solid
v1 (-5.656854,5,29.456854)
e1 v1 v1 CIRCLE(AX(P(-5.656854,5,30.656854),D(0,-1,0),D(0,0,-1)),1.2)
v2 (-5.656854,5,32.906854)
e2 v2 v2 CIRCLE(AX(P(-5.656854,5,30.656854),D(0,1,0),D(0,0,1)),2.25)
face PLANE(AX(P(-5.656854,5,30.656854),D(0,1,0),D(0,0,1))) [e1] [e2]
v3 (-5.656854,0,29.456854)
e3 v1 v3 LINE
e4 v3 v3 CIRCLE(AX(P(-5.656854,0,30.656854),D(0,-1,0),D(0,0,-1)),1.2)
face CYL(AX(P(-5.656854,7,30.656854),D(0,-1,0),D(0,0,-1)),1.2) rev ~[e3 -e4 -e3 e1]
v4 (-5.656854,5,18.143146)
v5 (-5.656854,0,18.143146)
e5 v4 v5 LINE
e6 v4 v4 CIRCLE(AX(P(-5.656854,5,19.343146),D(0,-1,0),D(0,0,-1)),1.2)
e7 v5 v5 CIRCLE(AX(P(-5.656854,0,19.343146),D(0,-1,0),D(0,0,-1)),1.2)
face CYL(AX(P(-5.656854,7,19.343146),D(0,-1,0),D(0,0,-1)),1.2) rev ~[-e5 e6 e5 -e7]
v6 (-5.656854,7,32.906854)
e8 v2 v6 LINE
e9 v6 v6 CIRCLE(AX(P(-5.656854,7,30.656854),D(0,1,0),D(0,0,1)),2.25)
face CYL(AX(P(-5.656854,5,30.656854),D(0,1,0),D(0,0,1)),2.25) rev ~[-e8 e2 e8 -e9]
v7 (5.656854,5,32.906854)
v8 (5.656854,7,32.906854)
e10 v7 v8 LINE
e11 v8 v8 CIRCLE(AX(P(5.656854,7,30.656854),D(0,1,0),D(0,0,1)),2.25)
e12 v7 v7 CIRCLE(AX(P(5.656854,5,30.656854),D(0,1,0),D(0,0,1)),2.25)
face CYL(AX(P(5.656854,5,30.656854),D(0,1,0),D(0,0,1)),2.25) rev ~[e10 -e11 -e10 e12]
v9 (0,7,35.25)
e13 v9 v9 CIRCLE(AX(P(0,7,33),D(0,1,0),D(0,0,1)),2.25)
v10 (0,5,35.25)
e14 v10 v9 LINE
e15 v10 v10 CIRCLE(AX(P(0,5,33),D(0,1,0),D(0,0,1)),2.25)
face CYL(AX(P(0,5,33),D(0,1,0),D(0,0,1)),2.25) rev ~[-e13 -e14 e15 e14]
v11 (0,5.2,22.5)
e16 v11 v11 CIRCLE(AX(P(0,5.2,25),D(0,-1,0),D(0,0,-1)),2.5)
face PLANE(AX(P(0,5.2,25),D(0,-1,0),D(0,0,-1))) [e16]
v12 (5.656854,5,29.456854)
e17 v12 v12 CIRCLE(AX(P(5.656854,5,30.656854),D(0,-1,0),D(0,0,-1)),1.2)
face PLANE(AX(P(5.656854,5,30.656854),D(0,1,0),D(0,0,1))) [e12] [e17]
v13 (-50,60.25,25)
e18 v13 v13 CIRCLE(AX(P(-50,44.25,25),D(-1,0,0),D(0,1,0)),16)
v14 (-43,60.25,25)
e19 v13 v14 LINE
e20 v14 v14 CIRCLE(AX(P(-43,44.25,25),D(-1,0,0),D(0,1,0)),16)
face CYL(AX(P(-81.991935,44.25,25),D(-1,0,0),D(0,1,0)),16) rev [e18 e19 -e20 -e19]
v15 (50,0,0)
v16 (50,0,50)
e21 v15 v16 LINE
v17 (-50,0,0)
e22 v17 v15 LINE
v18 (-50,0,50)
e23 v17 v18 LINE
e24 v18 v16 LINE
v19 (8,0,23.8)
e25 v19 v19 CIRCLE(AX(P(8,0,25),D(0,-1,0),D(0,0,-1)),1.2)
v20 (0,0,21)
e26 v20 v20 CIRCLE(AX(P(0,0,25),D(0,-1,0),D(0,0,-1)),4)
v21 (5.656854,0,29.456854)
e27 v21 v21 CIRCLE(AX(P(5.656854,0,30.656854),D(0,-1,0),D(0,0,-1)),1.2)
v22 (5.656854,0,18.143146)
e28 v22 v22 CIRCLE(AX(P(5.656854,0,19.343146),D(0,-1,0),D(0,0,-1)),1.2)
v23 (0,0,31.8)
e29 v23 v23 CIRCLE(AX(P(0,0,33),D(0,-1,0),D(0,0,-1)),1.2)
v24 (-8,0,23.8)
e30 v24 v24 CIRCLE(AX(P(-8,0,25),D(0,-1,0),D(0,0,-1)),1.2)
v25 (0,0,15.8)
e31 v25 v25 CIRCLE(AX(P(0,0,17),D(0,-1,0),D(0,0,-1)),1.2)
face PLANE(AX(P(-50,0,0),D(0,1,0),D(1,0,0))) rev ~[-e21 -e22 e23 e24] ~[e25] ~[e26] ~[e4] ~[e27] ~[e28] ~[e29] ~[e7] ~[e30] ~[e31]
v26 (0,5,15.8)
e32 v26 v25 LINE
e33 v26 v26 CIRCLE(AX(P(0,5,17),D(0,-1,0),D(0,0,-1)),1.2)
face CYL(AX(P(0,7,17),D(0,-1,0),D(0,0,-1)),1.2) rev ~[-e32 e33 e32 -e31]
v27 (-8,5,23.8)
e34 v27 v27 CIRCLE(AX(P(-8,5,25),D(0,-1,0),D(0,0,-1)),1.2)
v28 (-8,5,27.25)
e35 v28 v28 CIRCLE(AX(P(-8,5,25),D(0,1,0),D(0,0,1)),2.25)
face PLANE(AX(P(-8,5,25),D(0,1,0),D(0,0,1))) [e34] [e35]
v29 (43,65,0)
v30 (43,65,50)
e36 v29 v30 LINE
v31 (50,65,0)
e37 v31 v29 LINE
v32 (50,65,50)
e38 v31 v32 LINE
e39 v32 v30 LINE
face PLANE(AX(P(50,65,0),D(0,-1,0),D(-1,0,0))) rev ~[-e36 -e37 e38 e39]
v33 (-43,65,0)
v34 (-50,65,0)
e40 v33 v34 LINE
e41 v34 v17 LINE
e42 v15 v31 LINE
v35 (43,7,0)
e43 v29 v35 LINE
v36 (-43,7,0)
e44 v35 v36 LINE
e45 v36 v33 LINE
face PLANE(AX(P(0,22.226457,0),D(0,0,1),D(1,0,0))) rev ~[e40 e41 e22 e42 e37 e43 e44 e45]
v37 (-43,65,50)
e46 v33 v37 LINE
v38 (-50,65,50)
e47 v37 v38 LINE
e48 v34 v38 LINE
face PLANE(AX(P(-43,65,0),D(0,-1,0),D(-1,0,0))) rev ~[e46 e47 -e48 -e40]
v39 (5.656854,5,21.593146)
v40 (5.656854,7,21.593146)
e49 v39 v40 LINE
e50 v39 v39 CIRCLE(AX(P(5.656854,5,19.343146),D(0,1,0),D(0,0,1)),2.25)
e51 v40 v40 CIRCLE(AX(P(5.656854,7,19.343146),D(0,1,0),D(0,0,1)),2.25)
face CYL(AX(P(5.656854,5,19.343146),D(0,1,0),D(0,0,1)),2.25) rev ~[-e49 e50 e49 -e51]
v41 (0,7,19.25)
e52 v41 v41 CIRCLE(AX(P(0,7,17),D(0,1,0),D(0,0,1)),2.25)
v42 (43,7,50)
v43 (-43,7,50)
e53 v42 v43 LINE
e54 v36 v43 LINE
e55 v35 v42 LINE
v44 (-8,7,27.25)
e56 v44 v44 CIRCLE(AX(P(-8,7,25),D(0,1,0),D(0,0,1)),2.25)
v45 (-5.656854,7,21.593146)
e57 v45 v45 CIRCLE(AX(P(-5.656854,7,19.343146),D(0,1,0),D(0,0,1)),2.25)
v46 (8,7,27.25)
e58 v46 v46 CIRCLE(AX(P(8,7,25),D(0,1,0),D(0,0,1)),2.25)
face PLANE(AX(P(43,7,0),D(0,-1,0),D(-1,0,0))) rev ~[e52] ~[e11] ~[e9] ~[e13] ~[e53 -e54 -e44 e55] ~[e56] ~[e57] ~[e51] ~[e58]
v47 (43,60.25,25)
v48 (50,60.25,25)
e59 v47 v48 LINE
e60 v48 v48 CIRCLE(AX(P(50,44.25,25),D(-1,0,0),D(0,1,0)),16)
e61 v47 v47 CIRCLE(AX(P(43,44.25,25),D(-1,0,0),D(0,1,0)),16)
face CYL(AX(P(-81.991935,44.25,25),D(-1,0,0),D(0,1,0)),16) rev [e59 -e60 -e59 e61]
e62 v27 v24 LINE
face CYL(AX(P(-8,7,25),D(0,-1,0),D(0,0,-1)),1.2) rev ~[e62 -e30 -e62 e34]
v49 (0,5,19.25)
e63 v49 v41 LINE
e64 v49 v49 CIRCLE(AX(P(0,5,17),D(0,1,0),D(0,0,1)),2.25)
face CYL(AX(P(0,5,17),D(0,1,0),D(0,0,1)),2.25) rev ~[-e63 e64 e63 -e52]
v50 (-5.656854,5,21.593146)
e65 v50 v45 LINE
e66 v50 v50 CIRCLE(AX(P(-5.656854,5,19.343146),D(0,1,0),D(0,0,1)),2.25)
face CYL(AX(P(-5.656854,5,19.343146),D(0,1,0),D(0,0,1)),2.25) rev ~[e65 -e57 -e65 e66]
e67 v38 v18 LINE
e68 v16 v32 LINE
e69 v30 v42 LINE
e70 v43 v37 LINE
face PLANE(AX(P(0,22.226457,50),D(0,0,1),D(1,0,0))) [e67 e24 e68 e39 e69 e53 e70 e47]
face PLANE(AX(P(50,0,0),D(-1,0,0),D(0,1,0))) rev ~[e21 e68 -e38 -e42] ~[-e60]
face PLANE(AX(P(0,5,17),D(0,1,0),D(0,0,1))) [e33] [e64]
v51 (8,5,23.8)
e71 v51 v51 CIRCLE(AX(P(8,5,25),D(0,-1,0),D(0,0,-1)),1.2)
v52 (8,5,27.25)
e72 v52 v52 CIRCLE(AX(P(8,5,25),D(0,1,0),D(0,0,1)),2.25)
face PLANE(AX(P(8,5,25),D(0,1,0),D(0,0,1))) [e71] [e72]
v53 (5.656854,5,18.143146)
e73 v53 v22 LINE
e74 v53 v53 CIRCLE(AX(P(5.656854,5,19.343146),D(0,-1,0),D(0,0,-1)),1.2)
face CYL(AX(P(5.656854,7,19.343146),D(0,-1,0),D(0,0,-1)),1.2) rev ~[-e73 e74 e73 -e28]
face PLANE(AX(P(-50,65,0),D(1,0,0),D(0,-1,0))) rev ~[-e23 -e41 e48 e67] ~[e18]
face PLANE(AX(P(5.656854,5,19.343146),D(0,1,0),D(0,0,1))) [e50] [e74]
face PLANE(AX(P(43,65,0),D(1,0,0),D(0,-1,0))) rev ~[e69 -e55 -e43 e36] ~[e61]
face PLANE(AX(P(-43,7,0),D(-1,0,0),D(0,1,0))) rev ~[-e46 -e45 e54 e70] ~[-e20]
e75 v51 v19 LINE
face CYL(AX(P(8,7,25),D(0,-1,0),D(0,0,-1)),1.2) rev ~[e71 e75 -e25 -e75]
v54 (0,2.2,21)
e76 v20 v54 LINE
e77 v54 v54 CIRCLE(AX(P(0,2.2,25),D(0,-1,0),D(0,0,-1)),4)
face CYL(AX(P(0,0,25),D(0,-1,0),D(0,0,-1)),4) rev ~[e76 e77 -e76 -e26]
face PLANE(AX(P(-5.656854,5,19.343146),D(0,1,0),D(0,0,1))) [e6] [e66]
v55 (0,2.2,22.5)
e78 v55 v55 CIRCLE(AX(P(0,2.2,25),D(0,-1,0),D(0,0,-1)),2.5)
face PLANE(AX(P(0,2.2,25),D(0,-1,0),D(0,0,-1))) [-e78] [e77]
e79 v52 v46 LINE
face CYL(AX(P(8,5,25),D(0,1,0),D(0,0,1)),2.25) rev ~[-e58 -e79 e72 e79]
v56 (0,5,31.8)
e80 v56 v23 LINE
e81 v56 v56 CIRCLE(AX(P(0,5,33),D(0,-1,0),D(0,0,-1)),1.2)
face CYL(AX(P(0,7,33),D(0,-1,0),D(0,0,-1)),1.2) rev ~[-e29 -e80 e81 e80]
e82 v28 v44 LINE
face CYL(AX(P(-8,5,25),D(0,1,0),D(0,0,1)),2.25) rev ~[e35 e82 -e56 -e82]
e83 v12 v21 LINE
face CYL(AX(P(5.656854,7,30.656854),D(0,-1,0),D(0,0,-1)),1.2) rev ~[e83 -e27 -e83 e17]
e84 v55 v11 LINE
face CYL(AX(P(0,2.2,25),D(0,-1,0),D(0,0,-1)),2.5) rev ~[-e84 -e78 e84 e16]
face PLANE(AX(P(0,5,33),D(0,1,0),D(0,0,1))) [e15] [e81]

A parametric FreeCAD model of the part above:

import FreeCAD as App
import Part
import Sketcher

V = App.Vector
Q = App.Units.Quantity

doc = App.newDocument("Part")
params = doc.addObject("Spreadsheet::Sheet", "Params")
for row, (alias, value) in enumerate([
    ("sketch1_width", "100 mm"),
    ("sketch1_width2", "7 mm"),
    ("sketch1_height", "65 mm"),
    ("sketch1_height2", "58 mm"),
    ("pad1_length", "50 mm"),
    ("sketch2_diameter", "2.4 mm"),
    ("hole_diameter", "2.4 mm"),
    ("hole_cbore_diameter", "4.5 mm"),
    ("hole_cbore_depth", "2 mm"),
    ("sketch3_diameter", "8 mm"),
    ("pocket1_length", "2.2 mm"),
    ("sketch4_diameter", "5 mm"),
    ("pocket2_length", "3 mm"),
    ("sketch5_diameter", "32 mm"),
], start=1):
    params.set(f"A{row}", alias)
    params.set(f"B{row}", "=" + value)
    params.setAlias(f"B{row}", alias)

body = doc.addObject("PartDesign::Body", "Body")

# Sketch on XY plane
sketch1 = body.newObject("Sketcher::SketchObject", "Sketch")
sketch1.AttachmentSupport = (doc.getObject("XY_Plane"), [""])
sketch1.MapMode = "FlatFace"
sketch1.addGeometry(Part.LineSegment(V(-50, 0, 0), V(50, 0, 0)), False)
sketch1.addGeometry(Part.LineSegment(V(50, 0, 0), V(50, 65, 0)), False)
sketch1.addGeometry(Part.LineSegment(V(50, 65, 0), V(43, 65, 0)), False)
sketch1.addGeometry(Part.LineSegment(V(43, 65, 0), V(43, 7, 0)), False)
sketch1.addGeometry(Part.LineSegment(V(43, 7, 0), V(-43, 7, 0)), False)
sketch1.addGeometry(Part.LineSegment(V(-43, 7, 0), V(-43, 65, 0)), False)
sketch1.addGeometry(Part.LineSegment(V(-43, 65, 0), V(-50, 65, 0)), False)
sketch1.addGeometry(Part.LineSegment(V(-50, 65, 0), V(-50, 0, 0)), False)
sketch1.addConstraint(Sketcher.Constraint("Coincident", 0, 2, 1, 1))
sketch1.addConstraint(Sketcher.Constraint("Coincident", 1, 2, 2, 1))
sketch1.addConstraint(Sketcher.Constraint("Coincident", 2, 2, 3, 1))
sketch1.addConstraint(Sketcher.Constraint("Coincident", 3, 2, 4, 1))
sketch1.addConstraint(Sketcher.Constraint("Coincident", 4, 2, 5, 1))
sketch1.addConstraint(Sketcher.Constraint("Coincident", 5, 2, 6, 1))
sketch1.addConstraint(Sketcher.Constraint("Coincident", 6, 2, 7, 1))
sketch1.addConstraint(Sketcher.Constraint("Coincident", 7, 2, 0, 1))
sketch1.addConstraint(Sketcher.Constraint("Horizontal", 0))
sketch1.addConstraint(Sketcher.Constraint("Vertical", 1))
sketch1.addConstraint(Sketcher.Constraint("Horizontal", 2))
sketch1.addConstraint(Sketcher.Constraint("Vertical", 3))
sketch1.addConstraint(Sketcher.Constraint("Horizontal", 4))
sketch1.addConstraint(Sketcher.Constraint("Vertical", 5))
sketch1.addConstraint(Sketcher.Constraint("Horizontal", 6))
sketch1.addConstraint(Sketcher.Constraint("Vertical", 7))
sketch1.addConstraint(Sketcher.Constraint("Symmetric", 0, 2, 7, 2, -1, 1))
sketch1.addConstraint(Sketcher.Constraint("Symmetric", 2, 2, 5, 2, -2))
sketch1.addConstraint(Sketcher.Constraint("DistanceX", 0, 1, 0, 2, Q("100 mm")))
sketch1.addConstraint(Sketcher.Constraint("DistanceX", 2, 2, 2, 1, Q("7 mm")))
sketch1.addConstraint(Sketcher.Constraint("DistanceY", 1, 1, 1, 2, Q("65 mm")))
sketch1.addConstraint(Sketcher.Constraint("DistanceY", 3, 2, 3, 1, Q("58 mm")))
sketch1.setExpression("Constraints[18]", "Params.sketch1_width")
sketch1.setExpression("Constraints[19]", "Params.sketch1_width2")
sketch1.setExpression("Constraints[20]", "Params.sketch1_height")
sketch1.setExpression("Constraints[21]", "Params.sketch1_height2")
pad1 = body.newObject("PartDesign::Pad", "Pad")
pad1.Profile = sketch1
pad1.setExpression("Length", "Params.pad1_length")

# Sketch on XZ plane
sketch2 = body.newObject("Sketcher::SketchObject", "Sketch001")
sketch2.AttachmentSupport = (doc.getObject("XZ_Plane"), [""])
sketch2.MapMode = "FlatFace"
sketch2.AttachmentOffset = App.Placement(V(0, 0, -7), App.Rotation())
sketch2.addGeometry(Part.Circle(V(0, 17, 0), V(0, 0, 1), 1.2), False)
sketch2.addGeometry(Part.Circle(V(5.7, 19.3, 0), V(0, 0, 1), 1.2), False)
sketch2.addGeometry(Part.Circle(V(8, 25, 0), V(0, 0, 1), 1.2), False)
sketch2.addGeometry(Part.Circle(V(5.7, 30.7, 0), V(0, 0, 1), 1.2), False)
sketch2.addGeometry(Part.Circle(V(0, 33, 0), V(0, 0, 1), 1.2), False)
sketch2.addGeometry(Part.Circle(V(-5.7, 30.7, 0), V(0, 0, 1), 1.2), False)
sketch2.addGeometry(Part.Circle(V(-8, 25, 0), V(0, 0, 1), 1.2), False)
sketch2.addGeometry(Part.Circle(V(-5.7, 19.3, 0), V(0, 0, 1), 1.2), False)
sketch2.addConstraint(Sketcher.Constraint("Equal", 0, 1))
sketch2.addConstraint(Sketcher.Constraint("Equal", 1, 2))
sketch2.addConstraint(Sketcher.Constraint("Equal", 2, 3))
sketch2.addConstraint(Sketcher.Constraint("Equal", 3, 4))
sketch2.addConstraint(Sketcher.Constraint("Equal", 4, 5))
sketch2.addConstraint(Sketcher.Constraint("Equal", 5, 6))
sketch2.addConstraint(Sketcher.Constraint("Equal", 6, 7))
sketch2.addConstraint(Sketcher.Constraint("Symmetric", 3, 3, 5, 3, -2))
sketch2.addConstraint(Sketcher.Constraint("Symmetric", 2, 3, 6, 3, -2))
sketch2.addConstraint(Sketcher.Constraint("Symmetric", 1, 3, 7, 3, -2))
sketch2.addConstraint(Sketcher.Constraint("PointOnObject", 0, 3, -2))
sketch2.addConstraint(Sketcher.Constraint("PointOnObject", 4, 3, -2))
sketch2.addConstraint(Sketcher.Constraint("Vertical", 1, 3, 3, 3))
sketch2.addConstraint(Sketcher.Constraint("Diameter", 0, Q("2.4 mm")))
sketch2.addConstraint(Sketcher.Constraint("DistanceY", -1, 1, 0, 3, Q("17 mm")))
sketch2.addConstraint(Sketcher.Constraint("DistanceX", -1, 1, 2, 3, Q("8 mm")))
sketch2.addConstraint(Sketcher.Constraint("DistanceY", -1, 1, 2, 3, Q("25 mm")))
sketch2.addConstraint(Sketcher.Constraint("DistanceY", -1, 1, 4, 3, Q("33 mm")))
sketch2.addConstraint(Sketcher.Constraint("DistanceY", 1, 3, 3, 3, Q("11.313708 mm")))
sketch2.addConstraint(Sketcher.Constraint("DistanceX", 5, 3, 3, 3, Q("11.313708 mm")))
sketch2.addConstraint(Sketcher.Constraint("DistanceY", -1, 1, 1, 3, Q("19.343146 mm")))
sketch2.setExpression("Constraints[13]", "Params.sketch2_diameter")
doc.recompute()
hole = body.newObject("PartDesign::Hole", "Hole")
hole.Profile = sketch2
hole.ThreadType = "None"
hole.setExpression("Diameter", "Params.hole_diameter")
hole.DepthType = "ThroughAll"
hole.HoleCutType = "Counterbore"
hole.setExpression("HoleCutDiameter", "Params.hole_cbore_diameter")
hole.setExpression("HoleCutDepth", "Params.hole_cbore_depth")
hole.Reversed = True

# Sketch on XZ plane
sketch3 = body.newObject("Sketcher::SketchObject", "Sketch002")
sketch3.AttachmentSupport = (doc.getObject("XZ_Plane"), [""])
sketch3.MapMode = "FlatFace"
sketch3.addGeometry(Part.Circle(V(0, 25, 0), V(0, 0, 1), 4), False)
sketch3.addConstraint(Sketcher.Constraint("PointOnObject", 0, 3, -2))
sketch3.addConstraint(Sketcher.Constraint("Diameter", 0, Q("8 mm")))
sketch3.addConstraint(Sketcher.Constraint("DistanceY", -1, 1, 0, 3, Q("25 mm")))
sketch3.setExpression("Constraints[1]", "Params.sketch3_diameter")
pocket1 = body.newObject("PartDesign::Pocket", "Pocket")
pocket1.Profile = sketch3
pocket1.setExpression("Length", "Params.pocket1_length")

# Sketch on XZ plane
sketch4 = body.newObject("Sketcher::SketchObject", "Sketch003")
sketch4.AttachmentSupport = (doc.getObject("XZ_Plane"), [""])
sketch4.MapMode = "FlatFace"
sketch4.AttachmentOffset = App.Placement(V(0, 0, -2.2), App.Rotation())
sketch4.addGeometry(Part.Circle(V(0, 25, 0), V(0, 0, 1), 2.5), False)
sketch4.addConstraint(Sketcher.Constraint("PointOnObject", 0, 3, -2))
sketch4.addConstraint(Sketcher.Constraint("Diameter", 0, Q("5 mm")))
sketch4.addConstraint(Sketcher.Constraint("DistanceY", -1, 1, 0, 3, Q("25 mm")))
sketch4.setExpression("Constraints[1]", "Params.sketch4_diameter")
pocket2 = body.newObject("PartDesign::Pocket", "Pocket001")
pocket2.Profile = sketch4
pocket2.setExpression("Length", "Params.pocket2_length")

# Sketch on YZ plane
sketch5 = body.newObject("Sketcher::SketchObject", "Sketch004")
sketch5.AttachmentSupport = (doc.getObject("YZ_Plane"), [""])
sketch5.MapMode = "FlatFace"
sketch5.AttachmentOffset = App.Placement(V(0, 0, 43), App.Rotation())
sketch5.addGeometry(Part.Circle(V(44, 25, 0), V(0, 0, 1), 16), False)
sketch5.addConstraint(Sketcher.Constraint("Diameter", 0, Q("32 mm")))
sketch5.addConstraint(Sketcher.Constraint("DistanceY", -1, 1, 0, 3, Q("25 mm")))
sketch5.addConstraint(Sketcher.Constraint("DistanceX", -1, 1, 0, 3, Q("44.25 mm")))
sketch5.setExpression("Constraints[0]", "Params.sketch5_diameter")
pocket3 = body.newObject("PartDesign::Pocket", "Pocket002")
pocket3.Profile = sketch5
pocket3.Type = "ThroughAll"
pocket3.Midplane = True

doc.recompute()
